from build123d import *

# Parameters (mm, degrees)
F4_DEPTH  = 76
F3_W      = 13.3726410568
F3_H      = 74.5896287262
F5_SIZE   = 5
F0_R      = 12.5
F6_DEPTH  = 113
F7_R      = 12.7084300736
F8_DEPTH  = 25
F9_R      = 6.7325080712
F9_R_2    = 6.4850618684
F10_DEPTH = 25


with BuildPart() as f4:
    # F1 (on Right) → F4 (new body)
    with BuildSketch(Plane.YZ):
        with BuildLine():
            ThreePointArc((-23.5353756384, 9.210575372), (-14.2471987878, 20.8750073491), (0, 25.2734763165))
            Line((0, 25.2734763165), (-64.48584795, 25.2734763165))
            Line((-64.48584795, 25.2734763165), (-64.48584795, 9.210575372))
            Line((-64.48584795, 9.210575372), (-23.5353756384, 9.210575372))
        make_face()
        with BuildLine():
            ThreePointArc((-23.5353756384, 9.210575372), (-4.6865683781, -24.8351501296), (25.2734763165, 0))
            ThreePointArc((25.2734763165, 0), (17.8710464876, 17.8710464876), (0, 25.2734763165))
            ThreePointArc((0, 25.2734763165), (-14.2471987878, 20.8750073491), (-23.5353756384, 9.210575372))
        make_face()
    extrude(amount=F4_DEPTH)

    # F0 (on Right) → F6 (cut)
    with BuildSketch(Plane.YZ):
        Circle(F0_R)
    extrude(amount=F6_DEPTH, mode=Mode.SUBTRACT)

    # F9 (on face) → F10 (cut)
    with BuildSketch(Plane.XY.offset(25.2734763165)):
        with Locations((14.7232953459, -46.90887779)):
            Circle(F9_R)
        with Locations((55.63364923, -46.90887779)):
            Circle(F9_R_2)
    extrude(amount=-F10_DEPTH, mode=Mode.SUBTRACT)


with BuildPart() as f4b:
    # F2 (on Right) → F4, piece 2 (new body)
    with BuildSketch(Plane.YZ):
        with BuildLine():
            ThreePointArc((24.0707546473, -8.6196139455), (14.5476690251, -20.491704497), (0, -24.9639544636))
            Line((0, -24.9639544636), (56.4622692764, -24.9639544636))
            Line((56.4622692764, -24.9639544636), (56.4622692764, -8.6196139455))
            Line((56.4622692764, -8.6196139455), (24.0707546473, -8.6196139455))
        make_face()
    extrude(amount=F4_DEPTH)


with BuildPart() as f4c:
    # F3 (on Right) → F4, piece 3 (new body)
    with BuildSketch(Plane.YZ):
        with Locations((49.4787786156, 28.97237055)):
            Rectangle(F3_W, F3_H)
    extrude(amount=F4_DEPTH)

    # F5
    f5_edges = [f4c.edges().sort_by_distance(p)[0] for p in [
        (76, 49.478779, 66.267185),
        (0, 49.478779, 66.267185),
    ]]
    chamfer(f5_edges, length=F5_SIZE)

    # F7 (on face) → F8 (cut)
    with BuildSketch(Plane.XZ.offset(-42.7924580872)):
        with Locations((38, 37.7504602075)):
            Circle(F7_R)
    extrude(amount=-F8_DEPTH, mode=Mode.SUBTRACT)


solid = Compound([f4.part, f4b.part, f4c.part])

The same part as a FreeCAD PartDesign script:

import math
import FreeCAD as App
import Part
import Sketcher
Q = App.Units.Quantity


def edges_at(feature, points):
    """Names of the edges that pass closest to the given points."""
    edges = feature.Shape.Edges
    near = lambda p: min(range(len(edges)), key=lambda i: edges[i].distToShape(Part.Vertex(*p))[0])
    return sorted({f"Edge{near(p) + 1}" for p in points})


def add_polygon(sketch, points):
    """Adds a closed chain of lines whose ends are joined by coincident constraints."""
    first, n = sketch.GeometryCount, len(points)
    for a, b in zip(points, points[1:] + points[:1]):
        sketch.addGeometry(Part.LineSegment(App.Vector(*a, 0), App.Vector(*b, 0)), False)
    for i in range(n):
        sketch.addConstraint(Sketcher.Constraint("Coincident", first + i, 2, first + (i + 1) % n, 1))

doc = App.newDocument("Part")
body = doc.addObject("PartDesign::Body", "Body")

# Sketch on YZ plane
sketch1 = body.newObject("Sketcher::SketchObject", "Sketch")
sketch1.AttachmentSupport = (doc.getObject("YZ_Plane"), [""])
sketch1.MapMode = "FlatFace"
sketch1.addGeometry(Part.LineSegment(App.Vector(0, 25, 0), App.Vector(-64, 25, 0)), False)
sketch1.addGeometry(Part.LineSegment(App.Vector(-64, 25, 0), App.Vector(-64, 9, 0)), False)
sketch1.addGeometry(Part.LineSegment(App.Vector(-64, 9, 0), App.Vector(-24, 9, 0)), False)
sketch1.addGeometry(Part.ArcOfCircle(Part.Circle(App.Vector(0, 0, 0), App.Vector(0, 0, 1), 25), math.radians(159), math.radians(360)), False)
sketch1.addGeometry(Part.ArcOfCircle(Part.Circle(App.Vector(0, 0, 0), App.Vector(0, 0, 1), 25), math.radians(0), math.radians(90)), False)
sketch1.addConstraint(Sketcher.Constraint("Coincident", 0, 2, 1, 1))
sketch1.addConstraint(Sketcher.Constraint("Coincident", 1, 2, 2, 1))
sketch1.addConstraint(Sketcher.Constraint("Coincident", 2, 2, 3, 1))
sketch1.addConstraint(Sketcher.Constraint("Tangent", 3, 2, 4, 1))
sketch1.addConstraint(Sketcher.Constraint("Tangent", 4, 2, 0, 1))
sketch1.addConstraint(Sketcher.Constraint("Horizontal", 0))
sketch1.addConstraint(Sketcher.Constraint("Vertical", 1))
sketch1.addConstraint(Sketcher.Constraint("Horizontal", 2))
sketch1.addConstraint(Sketcher.Constraint("Coincident", 3, 3, -1, 1))
sketch1.addConstraint(Sketcher.Constraint("Equal", 3, 4))
sketch1.addConstraint(Sketcher.Constraint("PointOnObject", 3, 2, -1))
sketch1.addConstraint(Sketcher.Constraint("DistanceY", 1, 2, 1, 1, Q("16.062901 mm")))
sketch1.addConstraint(Sketcher.Constraint("Radius", 3, Q("25.273476 mm")))
sketch1.addConstraint(Sketcher.Constraint("DistanceX", 0, 2, 0, 1, Q("64.485848 mm")))
pad1 = body.newObject("PartDesign::Pad", "Pad")
pad1.Profile = sketch1
pad1.Length = 76

# Sketch on YZ plane
sketch2 = body.newObject("Sketcher::SketchObject", "Sketch001")
sketch2.AttachmentSupport = (doc.getObject("YZ_Plane"), [""])
sketch2.MapMode = "FlatFace"
sketch2.addGeometry(Part.Circle(App.Vector(0, 0, 0), App.Vector(0, 0, 1), 12), False)
sketch2.addConstraint(Sketcher.Constraint("Coincident", 0, 3, -1, 1))
sketch2.addConstraint(Sketcher.Constraint("Diameter", 0, Q("25 mm")))
pocket1 = body.newObject("PartDesign::Pocket", "Pocket")
pocket1.Profile = sketch2
pocket1.Length = 113
pocket1.Reversed = True

# Sketch on XY plane
sketch3 = body.newObject("Sketcher::SketchObject", "Sketch002")
sketch3.AttachmentSupport = (doc.getObject("XY_Plane"), [""])
sketch3.MapMode = "FlatFace"
sketch3.AttachmentOffset = App.Placement(App.Vector(0, 0, 25.273476), App.Rotation())
sketch3.addGeometry(Part.Circle(App.Vector(15, -47, 0), App.Vector(0, 0, 1), 7), False)
sketch3.addGeometry(Part.Circle(App.Vector(56, -47, 0), App.Vector(0, 0, 1), 6), False)
sketch3.addConstraint(Sketcher.Constraint("Horizontal", 0, 3, 1, 3))
sketch3.addConstraint(Sketcher.Constraint("Diameter", 0, Q("13.465016 mm")))
sketch3.addConstraint(Sketcher.Constraint("Diameter", 1, Q("12.970124 mm")))
sketch3.addConstraint(Sketcher.Constraint("DistanceX", -1, 1, 1, 3, Q("55.633649 mm")))
sketch3.addConstraint(Sketcher.Constraint("DistanceX", -1, 1, 0, 3, Q("14.723295 mm")))
sketch3.addConstraint(Sketcher.Constraint("DistanceY", 0, 3, -1, 1, Q("46.908878 mm")))
pocket2 = body.newObject("PartDesign::Pocket", "Pocket001")
pocket2.Profile = sketch3
pocket2.Length = 25
body2 = doc.addObject("PartDesign::Body", "Body001")

# Sketch on YZ plane
sketch4 = body2.newObject("Sketcher::SketchObject", "Sketch003")
sketch4.AttachmentSupport = (doc.getObject("YZ_Plane001"), [""])
sketch4.MapMode = "FlatFace"
sketch4.addGeometry(Part.ArcOfCircle(Part.Circle(App.Vector(0, 1, 0), App.Vector(0, 0, 1), 26), math.radians(-90), math.radians(-22)), False)
sketch4.addGeometry(Part.LineSegment(App.Vector(0, -25, 0), App.Vector(56, -25, 0)), False)
sketch4.addGeometry(Part.LineSegment(App.Vector(56, -25, 0), App.Vector(56, -9, 0)), False)
sketch4.addGeometry(Part.LineSegment(App.Vector(56, -9, 0), App.Vector(24, -9, 0)), False)
sketch4.addConstraint(Sketcher.Constraint("Tangent", 0, 1, 1, 1))
sketch4.addConstraint(Sketcher.Constraint("Coincident", 1, 2, 2, 1))
sketch4.addConstraint(Sketcher.Constraint("Coincident", 2, 2, 3, 1))
sketch4.addConstraint(Sketcher.Constraint("Coincident", 3, 2, 0, 2))
sketch4.addConstraint(Sketcher.Constraint("Horizontal", 1))
sketch4.addConstraint(Sketcher.Constraint("Vertical", 2))
sketch4.addConstraint(Sketcher.Constraint("Horizontal", 3))
sketch4.addConstraint(Sketcher.Constraint("PointOnObject", 0, 3, -2))
sketch4.addConstraint(Sketcher.Constraint("Radius", 0, Q("25.896998 mm")))
sketch4.addConstraint(Sketcher.Constraint("DistanceX", 1, 1, 1, 2, Q("56.462269 mm")))
sketch4.addConstraint(Sketcher.Constraint("DistanceY", 2, 1, 2, 2, Q("16.344341 mm")))
sketch4.addConstraint(Sketcher.Constraint("DistanceY", -1, 1, 0, 3, Q("0.933043 mm")))
pad2 = body2.newObject("PartDesign::Pad", "Pad001")
pad2.Profile = sketch4
pad2.Length = 76
body3 = doc.addObject("PartDesign::Body", "Body002")

# Sketch on YZ plane
sketch5 = body3.newObject("Sketcher::SketchObject", "Sketch004")
sketch5.AttachmentSupport = (doc.getObject("YZ_Plane002"), [""])
sketch5.MapMode = "FlatFace"
add_polygon(sketch5, [(43, 66), (43, -8), (56, -8), (56, 66)])  # lines 0-3
sketch5.addConstraint(Sketcher.Constraint("Vertical", 0))
sketch5.addConstraint(Sketcher.Constraint("Horizontal", 1))
sketch5.addConstraint(Sketcher.Constraint("Vertical", 2))
sketch5.addConstraint(Sketcher.Constraint("Horizontal", 3))
sketch5.addConstraint(Sketcher.Constraint("DistanceX", 1, 1, 1, 2, Q("13.372641 mm")))
sketch5.addConstraint(Sketcher.Constraint("DistanceY", 0, 2, 0, 1, Q("74.589629 mm")))
sketch5.addConstraint(Sketcher.Constraint("DistanceX", -1, 1, 1, 2, Q("56.165099 mm")))
sketch5.addConstraint(Sketcher.Constraint("DistanceY", 0, 2, -1, 1, Q("8.322444 mm")))
pad3 = body3.newObject("PartDesign::Pad", "Pad002")
pad3.Profile = sketch5
pad3.Length = 76
doc.recompute()

chamfer = body3.newObject("PartDesign::Chamfer", "Chamfer")
chamfer.Base = (pad3, edges_at(pad3, [(76, 49.479, 66.267), (0, 49.479, 66.267)]))
chamfer.Size = 5

# Sketch on XZ plane
sketch6 = body3.newObject("Sketcher::SketchObject", "Sketch005")
sketch6.AttachmentSupport = (doc.getObject("XZ_Plane002"), [""])
sketch6.MapMode = "FlatFace"
sketch6.AttachmentOffset = App.Placement(App.Vector(0, 0, -42.792458), App.Rotation())
sketch6.addGeometry(Part.Circle(App.Vector(38, 38, 0), App.Vector(0, 0, 1), 13), False)
sketch6.addConstraint(Sketcher.Constraint("DistanceX", -1, 1, 0, 3, Q("38 mm")))
sketch6.addConstraint(Sketcher.Constraint("Diameter", 0, Q("25.41686 mm")))
sketch6.addConstraint(Sketcher.Constraint("DistanceY", -1, 1, 0, 3, Q("37.75046 mm")))
pocket3 = body3.newObject("PartDesign::Pocket", "Pocket002")
pocket3.Profile = sketch6
pocket3.Length = 25

doc.recompute()
